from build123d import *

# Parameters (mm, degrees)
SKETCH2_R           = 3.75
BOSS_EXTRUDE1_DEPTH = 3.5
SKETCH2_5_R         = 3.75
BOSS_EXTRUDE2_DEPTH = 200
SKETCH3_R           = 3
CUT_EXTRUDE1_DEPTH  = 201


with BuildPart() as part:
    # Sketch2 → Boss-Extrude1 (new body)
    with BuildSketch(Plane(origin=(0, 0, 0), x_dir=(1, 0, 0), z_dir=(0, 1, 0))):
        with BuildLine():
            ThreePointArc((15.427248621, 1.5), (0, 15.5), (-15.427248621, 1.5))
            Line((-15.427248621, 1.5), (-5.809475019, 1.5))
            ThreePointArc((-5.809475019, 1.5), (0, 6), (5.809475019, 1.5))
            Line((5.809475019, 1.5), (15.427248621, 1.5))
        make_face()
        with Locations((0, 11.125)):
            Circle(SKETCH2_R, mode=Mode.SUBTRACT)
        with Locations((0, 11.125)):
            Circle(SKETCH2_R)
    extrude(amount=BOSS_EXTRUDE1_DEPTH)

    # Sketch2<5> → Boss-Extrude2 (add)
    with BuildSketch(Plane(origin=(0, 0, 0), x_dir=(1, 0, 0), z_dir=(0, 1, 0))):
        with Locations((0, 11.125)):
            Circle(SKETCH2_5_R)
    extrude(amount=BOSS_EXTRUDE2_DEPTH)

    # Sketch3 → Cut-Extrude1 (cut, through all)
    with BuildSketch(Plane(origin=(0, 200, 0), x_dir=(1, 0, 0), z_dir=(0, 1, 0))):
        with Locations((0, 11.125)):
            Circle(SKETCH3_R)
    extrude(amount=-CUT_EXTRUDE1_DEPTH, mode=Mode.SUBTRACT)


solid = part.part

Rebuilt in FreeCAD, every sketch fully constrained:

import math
import FreeCAD as App
import Part
import Sketcher

doc = App.newDocument("Part")
body = doc.addObject("PartDesign::Body", "Body")

# Sketch on XZ plane
sketch1 = doc.addObject("Sketcher::SketchObject", "Sketch")
body.addObject(sketch1)
sketch1.AttachmentSupport = (doc.XZ_Plane, [""])
sketch1.MapMode = "FlatFace"
sketch1.addGeometry([
    Part.ArcOfCircle(Part.Circle(App.Vector(0, 0, 0), App.Vector(0, 0, 1), 16), math.radians(-174), math.radians(-6)),
    Part.LineSegment(App.Vector(-15, -2, 0), App.Vector(-6, -2, 0)),
    Part.ArcOfCircle(Part.Circle(App.Vector(0, 0, 0), App.Vector(0, 0, 1), 6), math.radians(-166), math.radians(-14)),
    Part.LineSegment(App.Vector(6, -2, 0), App.Vector(15, -2, 0)),
], False)
sketch1.addConstraint([
    Sketcher.Constraint("Coincident", 0, 1, 1, 1),
    Sketcher.Constraint("Coincident", 1, 2, 2, 1),
    Sketcher.Constraint("Coincident", 2, 2, 3, 1),
    Sketcher.Constraint("Coincident", 3, 2, 0, 2),
    Sketcher.Constraint("Horizontal", 1),
    Sketcher.Constraint("Horizontal", 3),
    Sketcher.Constraint("Coincident", 0, 3, -1, 1),
    Sketcher.Constraint("Coincident", 2, 3, -1, 1),
    Sketcher.Constraint("Horizontal", 1, 2, 2, 2),
    Sketcher.Constraint("Radius", 2, 6.0),
    Sketcher.Constraint("Radius", 0, 15.5),
    Sketcher.Constraint("DistanceY", 0, 1, -1, 1, 1.5),
])
pad1 = doc.addObject("PartDesign::Pad", "Pad")
body.addObject(pad1)
pad1.Profile = sketch1
pad1.Length = 3.5
pad1.Reversed = True

# Sketch on XZ plane
sketch2 = doc.addObject("Sketcher::SketchObject", "Sketch001")
body.addObject(sketch2)
sketch2.AttachmentSupport = (doc.XZ_Plane, [""])
sketch2.MapMode = "FlatFace"
sketch2.addGeometry(Part.Circle(App.Vector(0, -11.1, 0), App.Vector(0, 0, 1), 3.8), False)
sketch2.addConstraint([
    Sketcher.Constraint("PointOnObject", 0, 3, -2),
    Sketcher.Constraint("Diameter", 0, 7.5),
    Sketcher.Constraint("DistanceY", 0, 3, -1, 1, 11.125),
])
pad2 = doc.addObject("PartDesign::Pad", "Pad001")
body.addObject(pad2)
pad2.Profile = sketch2
pad2.Length = 200
pad2.Reversed = True

# Sketch on XZ plane
sketch3 = doc.addObject("Sketcher::SketchObject", "Sketch002")
body.addObject(sketch3)
sketch3.AttachmentSupport = (doc.XZ_Plane, [""])
sketch3.MapMode = "FlatFace"
sketch3.AttachmentOffset = App.Placement(App.Vector(0, 0, -200), App.Rotation())
sketch3.addGeometry(Part.Circle(App.Vector(0, -11.1, 0), App.Vector(0, 0, 1), 3), False)
sketch3.addConstraint([
    Sketcher.Constraint("PointOnObject", 0, 3, -2),
    Sketcher.Constraint("Diameter", 0, 6.0),
    Sketcher.Constraint("DistanceY", 0, 3, -1, 1, 11.125),
])
pocket1 = doc.addObject("PartDesign::Pocket", "Pocket")
body.addObject(pocket1)
pocket1.Profile = sketch3
pocket1.Type = "ThroughAll"
pocket1.Reversed = True

doc.recompute()
